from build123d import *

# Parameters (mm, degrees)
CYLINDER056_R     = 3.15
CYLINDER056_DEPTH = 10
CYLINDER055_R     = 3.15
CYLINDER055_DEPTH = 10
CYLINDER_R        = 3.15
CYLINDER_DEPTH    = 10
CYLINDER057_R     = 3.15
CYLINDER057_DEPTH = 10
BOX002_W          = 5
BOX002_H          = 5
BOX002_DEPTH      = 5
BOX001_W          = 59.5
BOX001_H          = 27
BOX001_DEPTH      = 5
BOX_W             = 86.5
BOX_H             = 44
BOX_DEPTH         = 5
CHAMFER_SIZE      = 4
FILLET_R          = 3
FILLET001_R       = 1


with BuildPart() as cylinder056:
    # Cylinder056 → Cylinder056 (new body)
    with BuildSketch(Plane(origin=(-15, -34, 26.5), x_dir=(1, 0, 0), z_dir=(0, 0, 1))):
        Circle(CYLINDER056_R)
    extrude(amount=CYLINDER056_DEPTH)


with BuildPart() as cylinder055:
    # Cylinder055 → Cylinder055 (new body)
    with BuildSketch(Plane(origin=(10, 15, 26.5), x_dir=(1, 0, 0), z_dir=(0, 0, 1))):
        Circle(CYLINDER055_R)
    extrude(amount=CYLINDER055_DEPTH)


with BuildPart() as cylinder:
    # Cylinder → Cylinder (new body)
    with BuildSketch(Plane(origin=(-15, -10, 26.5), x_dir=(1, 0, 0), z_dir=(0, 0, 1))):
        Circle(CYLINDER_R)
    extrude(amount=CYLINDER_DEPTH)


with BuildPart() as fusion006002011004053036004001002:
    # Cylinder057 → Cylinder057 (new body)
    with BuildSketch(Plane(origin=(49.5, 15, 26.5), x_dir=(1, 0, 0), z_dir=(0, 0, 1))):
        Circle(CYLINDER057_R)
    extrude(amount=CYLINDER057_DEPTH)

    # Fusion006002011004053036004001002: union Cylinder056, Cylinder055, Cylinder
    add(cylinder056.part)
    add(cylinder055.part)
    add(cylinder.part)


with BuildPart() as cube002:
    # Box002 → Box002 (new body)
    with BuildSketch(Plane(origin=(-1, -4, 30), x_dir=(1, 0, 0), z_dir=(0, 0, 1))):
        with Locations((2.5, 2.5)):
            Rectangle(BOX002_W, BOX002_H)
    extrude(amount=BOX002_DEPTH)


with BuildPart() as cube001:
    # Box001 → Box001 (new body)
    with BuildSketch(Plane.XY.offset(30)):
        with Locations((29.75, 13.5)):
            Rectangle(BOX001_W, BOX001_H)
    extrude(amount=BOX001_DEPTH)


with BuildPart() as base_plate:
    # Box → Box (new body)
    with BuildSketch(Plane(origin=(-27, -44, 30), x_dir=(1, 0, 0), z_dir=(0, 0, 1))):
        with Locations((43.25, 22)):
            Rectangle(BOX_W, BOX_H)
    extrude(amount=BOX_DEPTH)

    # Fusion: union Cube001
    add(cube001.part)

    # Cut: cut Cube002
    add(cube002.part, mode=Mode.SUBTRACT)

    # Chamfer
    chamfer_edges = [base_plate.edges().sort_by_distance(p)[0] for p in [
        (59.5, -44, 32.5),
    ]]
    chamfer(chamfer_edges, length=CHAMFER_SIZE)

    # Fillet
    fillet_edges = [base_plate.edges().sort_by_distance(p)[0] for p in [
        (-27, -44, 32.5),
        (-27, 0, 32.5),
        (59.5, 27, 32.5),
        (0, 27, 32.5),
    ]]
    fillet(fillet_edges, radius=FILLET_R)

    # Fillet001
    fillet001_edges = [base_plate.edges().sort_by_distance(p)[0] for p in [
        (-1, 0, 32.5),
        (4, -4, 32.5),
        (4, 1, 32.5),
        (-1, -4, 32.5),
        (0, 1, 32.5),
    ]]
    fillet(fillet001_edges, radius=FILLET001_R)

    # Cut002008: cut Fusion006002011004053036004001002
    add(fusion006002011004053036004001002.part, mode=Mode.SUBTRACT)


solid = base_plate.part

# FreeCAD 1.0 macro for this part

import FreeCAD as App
import Part
import Sketcher

V = App.Vector
Q = App.Units.Quantity


def edges_at(feature, points):
    """Names of the edges that pass closest to the given points."""
    edges = feature.Shape.Edges
    near = lambda p: min(range(len(edges)), key=lambda i: edges[i].distToShape(Part.Vertex(*p))[0])
    return sorted({f"Edge{near(p) + 1}" for p in points})

doc = App.newDocument("Part")
body = doc.addObject("PartDesign::Body", "Body")

sketch1 = body.newObject("Sketcher::SketchObject", "Sketch")
sketch1.AttachmentSupport = (doc.getObject("XY_Plane"), [""])
sketch1.MapMode = "FlatFace"
sketch1.AttachmentOffset = App.Placement(V(0, 0, 26.5), App.Rotation())
sketch1.addGeometry(Part.Circle(V(-15, -34, 0), V(0, 0, 1), 3.1), False)
sketch1.addConstraint(Sketcher.Constraint("Diameter", 0, Q("6.3 mm")))
sketch1.addConstraint(Sketcher.Constraint("DistanceX", 0, 3, -1, 1, Q("15 mm")))
sketch1.addConstraint(Sketcher.Constraint("DistanceY", 0, 3, -1, 1, Q("34 mm")))
pad1 = body.newObject("PartDesign::Pad", "Pad")
pad1.Profile = sketch1
pad1.Length = 10
body2 = doc.addObject("PartDesign::Body", "Body001")

sketch2 = body2.newObject("Sketcher::SketchObject", "Sketch001")
sketch2.AttachmentSupport = (doc.getObject("XY_Plane001"), [""])
sketch2.MapMode = "FlatFace"
sketch2.AttachmentOffset = App.Placement(V(0, 0, 26.5), App.Rotation())
sketch2.addGeometry(Part.Circle(V(10, 15, 0), V(0, 0, 1), 3.1), False)
sketch2.addConstraint(Sketcher.Constraint("Diameter", 0, Q("6.3 mm")))
sketch2.addConstraint(Sketcher.Constraint("DistanceX", -1, 1, 0, 3, Q("10 mm")))
sketch2.addConstraint(Sketcher.Constraint("DistanceY", -1, 1, 0, 3, Q("15 mm")))
pad2 = body2.newObject("PartDesign::Pad", "Pad001")
pad2.Profile = sketch2
pad2.Length = 10
body3 = doc.addObject("PartDesign::Body", "Body002")

sketch3 = body3.newObject("Sketcher::SketchObject", "Sketch002")
sketch3.AttachmentSupport = (doc.getObject("XY_Plane002"), [""])
sketch3.MapMode = "FlatFace"
sketch3.AttachmentOffset = App.Placement(V(0, 0, 26.5), App.Rotation())
sketch3.addGeometry(Part.Circle(V(-15, -10, 0), V(0, 0, 1), 3.1), False)
sketch3.addConstraint(Sketcher.Constraint("Diameter", 0, Q("6.3 mm")))
sketch3.addConstraint(Sketcher.Constraint("DistanceX", 0, 3, -1, 1, Q("15 mm")))
sketch3.addConstraint(Sketcher.Constraint("DistanceY", 0, 3, -1, 1, Q("10 mm")))
pad3 = body3.newObject("PartDesign::Pad", "Pad002")
pad3.Profile = sketch3
pad3.Length = 10
body4 = doc.addObject("PartDesign::Body", "Body003")
body4.AllowCompound = True

sketch4 = body4.newObject("Sketcher::SketchObject", "Sketch003")
sketch4.AttachmentSupport = (doc.getObject("XY_Plane003"), [""])
sketch4.MapMode = "FlatFace"
sketch4.AttachmentOffset = App.Placement(V(0, 0, 26.5), App.Rotation())
sketch4.addGeometry(Part.Circle(V(49.5, 15, 0), V(0, 0, 1), 3.1), False)
sketch4.addConstraint(Sketcher.Constraint("Diameter", 0, Q("6.3 mm")))
sketch4.addConstraint(Sketcher.Constraint("DistanceY", -1, 1, 0, 3, Q("15 mm")))
sketch4.addConstraint(Sketcher.Constraint("DistanceX", -1, 1, 0, 3, Q("49.5 mm")))
pad4 = body4.newObject("PartDesign::Pad", "Pad003")
pad4.Profile = sketch4
pad4.Length = 10
doc.recompute()

boolean = body4.newObject("PartDesign::Boolean", "Boolean")
boolean.Type = "Fuse"
boolean.addObjects([body])
doc.recompute()

boolean2 = body4.newObject("PartDesign::Boolean", "Boolean001")
boolean2.Type = "Fuse"
boolean2.addObjects([body2])
doc.recompute()

boolean3 = body4.newObject("PartDesign::Boolean", "Boolean002")
boolean3.Type = "Fuse"
boolean3.addObjects([body3])
body5 = doc.addObject("PartDesign::Body", "Body004")

sketch5 = body5.newObject("Sketcher::SketchObject", "Sketch004")
sketch5.AttachmentSupport = (doc.getObject("XY_Plane004"), [""])
sketch5.MapMode = "FlatFace"
sketch5.AttachmentOffset = App.Placement(V(0, 0, 30), App.Rotation())
sketch5.addGeometry(Part.LineSegment(V(-1, 1, 0), V(-1, -4, 0)), False)
sketch5.addGeometry(Part.LineSegment(V(-1, -4, 0), V(4, -4, 0)), False)
sketch5.addGeometry(Part.LineSegment(V(4, -4, 0), V(4, 1, 0)), False)
sketch5.addGeometry(Part.LineSegment(V(4, 1, 0), V(-1, 1, 0)), False)
sketch5.addConstraint(Sketcher.Constraint("Coincident", 0, 2, 1, 1))
sketch5.addConstraint(Sketcher.Constraint("Coincident", 1, 2, 2, 1))
sketch5.addConstraint(Sketcher.Constraint("Coincident", 2, 2, 3, 1))
sketch5.addConstraint(Sketcher.Constraint("Coincident", 3, 2, 0, 1))
sketch5.addConstraint(Sketcher.Constraint("Vertical", 0))
sketch5.addConstraint(Sketcher.Constraint("Horizontal", 1))
sketch5.addConstraint(Sketcher.Constraint("Vertical", 2))
sketch5.addConstraint(Sketcher.Constraint("Horizontal", 3))
sketch5.addConstraint(Sketcher.Constraint("Equal", 3, 0))
sketch5.addConstraint(Sketcher.Constraint("DistanceX", 1, 1, 1, 2, Q("5 mm")))
sketch5.addConstraint(Sketcher.Constraint("DistanceX", 0, 2, -1, 1, Q("1 mm")))
sketch5.addConstraint(Sketcher.Constraint("DistanceY", 0, 2, -1, 1, Q("4 mm")))
pad5 = body5.newObject("PartDesign::Pad", "Pad004")
pad5.Profile = sketch5
pad5.Length = 5
body6 = doc.addObject("PartDesign::Body", "Body005")

sketch6 = body6.newObject("Sketcher::SketchObject", "Sketch005")
sketch6.AttachmentSupport = (doc.getObject("XY_Plane005"), [""])
sketch6.MapMode = "FlatFace"
sketch6.AttachmentOffset = App.Placement(V(0, 0, 30), App.Rotation())
sketch6.addGeometry(Part.LineSegment(V(0, 27, 0), V(0, 0, 0)), False)
sketch6.addGeometry(Part.LineSegment(V(0, 0, 0), V(60, 0, 0)), False)
sketch6.addGeometry(Part.LineSegment(V(60, 0, 0), V(60, 27, 0)), False)
sketch6.addGeometry(Part.LineSegment(V(60, 27, 0), V(0, 27, 0)), False)
sketch6.addConstraint(Sketcher.Constraint("Coincident", 0, 2, 1, 1))
sketch6.addConstraint(Sketcher.Constraint("Coincident", 1, 2, 2, 1))
sketch6.addConstraint(Sketcher.Constraint("Coincident", 2, 2, 3, 1))
sketch6.addConstraint(Sketcher.Constraint("Coincident", 3, 2, 0, 1))
sketch6.addConstraint(Sketcher.Constraint("Vertical", 0))
sketch6.addConstraint(Sketcher.Constraint("Horizontal", 1))
sketch6.addConstraint(Sketcher.Constraint("Vertical", 2))
sketch6.addConstraint(Sketcher.Constraint("Horizontal", 3))
sketch6.addConstraint(Sketcher.Constraint("Coincident", 0, 2, -1, 1))
sketch6.addConstraint(Sketcher.Constraint("DistanceY", 0, 2, 0, 1, Q("27 mm")))
sketch6.addConstraint(Sketcher.Constraint("DistanceX", 1, 1, 1, 2, Q("59.5 mm")))
pad6 = body6.newObject("PartDesign::Pad", "Pad005")
pad6.Profile = sketch6
pad6.Length = 5
body7 = doc.addObject("PartDesign::Body", "Body006")

sketch7 = body7.newObject("Sketcher::SketchObject", "Sketch006")
sketch7.AttachmentSupport = (doc.getObject("XY_Plane006"), [""])
sketch7.MapMode = "FlatFace"
sketch7.AttachmentOffset = App.Placement(V(0, 0, 30), App.Rotation())
sketch7.addGeometry(Part.LineSegment(V(-27, 0, 0), V(-27, -44, 0)), False)
sketch7.addGeometry(Part.LineSegment(V(-27, -44, 0), V(60, -44, 0)), False)
sketch7.addGeometry(Part.LineSegment(V(60, -44, 0), V(60, 0, 0)), False)
sketch7.addGeometry(Part.LineSegment(V(60, 0, 0), V(-27, 0, 0)), False)
sketch7.addConstraint(Sketcher.Constraint("Coincident", 0, 2, 1, 1))
sketch7.addConstraint(Sketcher.Constraint("Coincident", 1, 2, 2, 1))
sketch7.addConstraint(Sketcher.Constraint("Coincident", 2, 2, 3, 1))
sketch7.addConstraint(Sketcher.Constraint("Coincident", 3, 2, 0, 1))
sketch7.addConstraint(Sketcher.Constraint("Vertical", 0))
sketch7.addConstraint(Sketcher.Constraint("Horizontal", 1))
sketch7.addConstraint(Sketcher.Constraint("Vertical", 2))
sketch7.addConstraint(Sketcher.Constraint("Horizontal", 3))
sketch7.addConstraint(Sketcher.Constraint("PointOnObject", 2, 2, -1))
sketch7.addConstraint(Sketcher.Constraint("DistanceY", 0, 2, 0, 1, Q("44 mm")))
sketch7.addConstraint(Sketcher.Constraint("DistanceX", 1, 1, 1, 2, Q("86.5 mm")))
sketch7.addConstraint(Sketcher.Constraint("DistanceX", 0, 2, -1, 1, Q("27 mm")))
pad7 = body7.newObject("PartDesign::Pad", "Pad006")
pad7.Profile = sketch7
pad7.Length = 5
doc.recompute()

boolean4 = body7.newObject("PartDesign::Boolean", "Boolean003")
boolean4.Type = "Fuse"
boolean4.addObjects([body6])
doc.recompute()

boolean5 = body7.newObject("PartDesign::Boolean", "Boolean004")
boolean5.Type = "Cut"
boolean5.addObjects([body5])
doc.recompute()

chamfer = body7.newObject("PartDesign::Chamfer", "Chamfer")
chamfer.Base = (boolean5, edges_at(boolean5, [(59.5, -44, 32.5)]))
chamfer.Size = 4
doc.recompute()

fillet = body7.newObject("PartDesign::Fillet", "Fillet")
fillet.Base = (chamfer, edges_at(chamfer, [
    (-27, -44, 32.5),
    (-27, 0, 32.5),
    (59.5, 27, 32.5),
    (0, 27, 32.5),
]))
fillet.Radius = 3
doc.recompute()

fillet2 = body7.newObject("PartDesign::Fillet", "Fillet001")
fillet2.Base = (fillet, edges_at(fillet, [
    (-1, 0, 32.5),
    (4, -4, 32.5),
    (4, 1, 32.5),
    (-1, -4, 32.5),
    (0, 1, 32.5),
]))
fillet2.Radius = 1
doc.recompute()

boolean6 = body7.newObject("PartDesign::Boolean", "Boolean005")
boolean6.Type = "Cut"
boolean6.addObjects([body4])

doc.recompute()
